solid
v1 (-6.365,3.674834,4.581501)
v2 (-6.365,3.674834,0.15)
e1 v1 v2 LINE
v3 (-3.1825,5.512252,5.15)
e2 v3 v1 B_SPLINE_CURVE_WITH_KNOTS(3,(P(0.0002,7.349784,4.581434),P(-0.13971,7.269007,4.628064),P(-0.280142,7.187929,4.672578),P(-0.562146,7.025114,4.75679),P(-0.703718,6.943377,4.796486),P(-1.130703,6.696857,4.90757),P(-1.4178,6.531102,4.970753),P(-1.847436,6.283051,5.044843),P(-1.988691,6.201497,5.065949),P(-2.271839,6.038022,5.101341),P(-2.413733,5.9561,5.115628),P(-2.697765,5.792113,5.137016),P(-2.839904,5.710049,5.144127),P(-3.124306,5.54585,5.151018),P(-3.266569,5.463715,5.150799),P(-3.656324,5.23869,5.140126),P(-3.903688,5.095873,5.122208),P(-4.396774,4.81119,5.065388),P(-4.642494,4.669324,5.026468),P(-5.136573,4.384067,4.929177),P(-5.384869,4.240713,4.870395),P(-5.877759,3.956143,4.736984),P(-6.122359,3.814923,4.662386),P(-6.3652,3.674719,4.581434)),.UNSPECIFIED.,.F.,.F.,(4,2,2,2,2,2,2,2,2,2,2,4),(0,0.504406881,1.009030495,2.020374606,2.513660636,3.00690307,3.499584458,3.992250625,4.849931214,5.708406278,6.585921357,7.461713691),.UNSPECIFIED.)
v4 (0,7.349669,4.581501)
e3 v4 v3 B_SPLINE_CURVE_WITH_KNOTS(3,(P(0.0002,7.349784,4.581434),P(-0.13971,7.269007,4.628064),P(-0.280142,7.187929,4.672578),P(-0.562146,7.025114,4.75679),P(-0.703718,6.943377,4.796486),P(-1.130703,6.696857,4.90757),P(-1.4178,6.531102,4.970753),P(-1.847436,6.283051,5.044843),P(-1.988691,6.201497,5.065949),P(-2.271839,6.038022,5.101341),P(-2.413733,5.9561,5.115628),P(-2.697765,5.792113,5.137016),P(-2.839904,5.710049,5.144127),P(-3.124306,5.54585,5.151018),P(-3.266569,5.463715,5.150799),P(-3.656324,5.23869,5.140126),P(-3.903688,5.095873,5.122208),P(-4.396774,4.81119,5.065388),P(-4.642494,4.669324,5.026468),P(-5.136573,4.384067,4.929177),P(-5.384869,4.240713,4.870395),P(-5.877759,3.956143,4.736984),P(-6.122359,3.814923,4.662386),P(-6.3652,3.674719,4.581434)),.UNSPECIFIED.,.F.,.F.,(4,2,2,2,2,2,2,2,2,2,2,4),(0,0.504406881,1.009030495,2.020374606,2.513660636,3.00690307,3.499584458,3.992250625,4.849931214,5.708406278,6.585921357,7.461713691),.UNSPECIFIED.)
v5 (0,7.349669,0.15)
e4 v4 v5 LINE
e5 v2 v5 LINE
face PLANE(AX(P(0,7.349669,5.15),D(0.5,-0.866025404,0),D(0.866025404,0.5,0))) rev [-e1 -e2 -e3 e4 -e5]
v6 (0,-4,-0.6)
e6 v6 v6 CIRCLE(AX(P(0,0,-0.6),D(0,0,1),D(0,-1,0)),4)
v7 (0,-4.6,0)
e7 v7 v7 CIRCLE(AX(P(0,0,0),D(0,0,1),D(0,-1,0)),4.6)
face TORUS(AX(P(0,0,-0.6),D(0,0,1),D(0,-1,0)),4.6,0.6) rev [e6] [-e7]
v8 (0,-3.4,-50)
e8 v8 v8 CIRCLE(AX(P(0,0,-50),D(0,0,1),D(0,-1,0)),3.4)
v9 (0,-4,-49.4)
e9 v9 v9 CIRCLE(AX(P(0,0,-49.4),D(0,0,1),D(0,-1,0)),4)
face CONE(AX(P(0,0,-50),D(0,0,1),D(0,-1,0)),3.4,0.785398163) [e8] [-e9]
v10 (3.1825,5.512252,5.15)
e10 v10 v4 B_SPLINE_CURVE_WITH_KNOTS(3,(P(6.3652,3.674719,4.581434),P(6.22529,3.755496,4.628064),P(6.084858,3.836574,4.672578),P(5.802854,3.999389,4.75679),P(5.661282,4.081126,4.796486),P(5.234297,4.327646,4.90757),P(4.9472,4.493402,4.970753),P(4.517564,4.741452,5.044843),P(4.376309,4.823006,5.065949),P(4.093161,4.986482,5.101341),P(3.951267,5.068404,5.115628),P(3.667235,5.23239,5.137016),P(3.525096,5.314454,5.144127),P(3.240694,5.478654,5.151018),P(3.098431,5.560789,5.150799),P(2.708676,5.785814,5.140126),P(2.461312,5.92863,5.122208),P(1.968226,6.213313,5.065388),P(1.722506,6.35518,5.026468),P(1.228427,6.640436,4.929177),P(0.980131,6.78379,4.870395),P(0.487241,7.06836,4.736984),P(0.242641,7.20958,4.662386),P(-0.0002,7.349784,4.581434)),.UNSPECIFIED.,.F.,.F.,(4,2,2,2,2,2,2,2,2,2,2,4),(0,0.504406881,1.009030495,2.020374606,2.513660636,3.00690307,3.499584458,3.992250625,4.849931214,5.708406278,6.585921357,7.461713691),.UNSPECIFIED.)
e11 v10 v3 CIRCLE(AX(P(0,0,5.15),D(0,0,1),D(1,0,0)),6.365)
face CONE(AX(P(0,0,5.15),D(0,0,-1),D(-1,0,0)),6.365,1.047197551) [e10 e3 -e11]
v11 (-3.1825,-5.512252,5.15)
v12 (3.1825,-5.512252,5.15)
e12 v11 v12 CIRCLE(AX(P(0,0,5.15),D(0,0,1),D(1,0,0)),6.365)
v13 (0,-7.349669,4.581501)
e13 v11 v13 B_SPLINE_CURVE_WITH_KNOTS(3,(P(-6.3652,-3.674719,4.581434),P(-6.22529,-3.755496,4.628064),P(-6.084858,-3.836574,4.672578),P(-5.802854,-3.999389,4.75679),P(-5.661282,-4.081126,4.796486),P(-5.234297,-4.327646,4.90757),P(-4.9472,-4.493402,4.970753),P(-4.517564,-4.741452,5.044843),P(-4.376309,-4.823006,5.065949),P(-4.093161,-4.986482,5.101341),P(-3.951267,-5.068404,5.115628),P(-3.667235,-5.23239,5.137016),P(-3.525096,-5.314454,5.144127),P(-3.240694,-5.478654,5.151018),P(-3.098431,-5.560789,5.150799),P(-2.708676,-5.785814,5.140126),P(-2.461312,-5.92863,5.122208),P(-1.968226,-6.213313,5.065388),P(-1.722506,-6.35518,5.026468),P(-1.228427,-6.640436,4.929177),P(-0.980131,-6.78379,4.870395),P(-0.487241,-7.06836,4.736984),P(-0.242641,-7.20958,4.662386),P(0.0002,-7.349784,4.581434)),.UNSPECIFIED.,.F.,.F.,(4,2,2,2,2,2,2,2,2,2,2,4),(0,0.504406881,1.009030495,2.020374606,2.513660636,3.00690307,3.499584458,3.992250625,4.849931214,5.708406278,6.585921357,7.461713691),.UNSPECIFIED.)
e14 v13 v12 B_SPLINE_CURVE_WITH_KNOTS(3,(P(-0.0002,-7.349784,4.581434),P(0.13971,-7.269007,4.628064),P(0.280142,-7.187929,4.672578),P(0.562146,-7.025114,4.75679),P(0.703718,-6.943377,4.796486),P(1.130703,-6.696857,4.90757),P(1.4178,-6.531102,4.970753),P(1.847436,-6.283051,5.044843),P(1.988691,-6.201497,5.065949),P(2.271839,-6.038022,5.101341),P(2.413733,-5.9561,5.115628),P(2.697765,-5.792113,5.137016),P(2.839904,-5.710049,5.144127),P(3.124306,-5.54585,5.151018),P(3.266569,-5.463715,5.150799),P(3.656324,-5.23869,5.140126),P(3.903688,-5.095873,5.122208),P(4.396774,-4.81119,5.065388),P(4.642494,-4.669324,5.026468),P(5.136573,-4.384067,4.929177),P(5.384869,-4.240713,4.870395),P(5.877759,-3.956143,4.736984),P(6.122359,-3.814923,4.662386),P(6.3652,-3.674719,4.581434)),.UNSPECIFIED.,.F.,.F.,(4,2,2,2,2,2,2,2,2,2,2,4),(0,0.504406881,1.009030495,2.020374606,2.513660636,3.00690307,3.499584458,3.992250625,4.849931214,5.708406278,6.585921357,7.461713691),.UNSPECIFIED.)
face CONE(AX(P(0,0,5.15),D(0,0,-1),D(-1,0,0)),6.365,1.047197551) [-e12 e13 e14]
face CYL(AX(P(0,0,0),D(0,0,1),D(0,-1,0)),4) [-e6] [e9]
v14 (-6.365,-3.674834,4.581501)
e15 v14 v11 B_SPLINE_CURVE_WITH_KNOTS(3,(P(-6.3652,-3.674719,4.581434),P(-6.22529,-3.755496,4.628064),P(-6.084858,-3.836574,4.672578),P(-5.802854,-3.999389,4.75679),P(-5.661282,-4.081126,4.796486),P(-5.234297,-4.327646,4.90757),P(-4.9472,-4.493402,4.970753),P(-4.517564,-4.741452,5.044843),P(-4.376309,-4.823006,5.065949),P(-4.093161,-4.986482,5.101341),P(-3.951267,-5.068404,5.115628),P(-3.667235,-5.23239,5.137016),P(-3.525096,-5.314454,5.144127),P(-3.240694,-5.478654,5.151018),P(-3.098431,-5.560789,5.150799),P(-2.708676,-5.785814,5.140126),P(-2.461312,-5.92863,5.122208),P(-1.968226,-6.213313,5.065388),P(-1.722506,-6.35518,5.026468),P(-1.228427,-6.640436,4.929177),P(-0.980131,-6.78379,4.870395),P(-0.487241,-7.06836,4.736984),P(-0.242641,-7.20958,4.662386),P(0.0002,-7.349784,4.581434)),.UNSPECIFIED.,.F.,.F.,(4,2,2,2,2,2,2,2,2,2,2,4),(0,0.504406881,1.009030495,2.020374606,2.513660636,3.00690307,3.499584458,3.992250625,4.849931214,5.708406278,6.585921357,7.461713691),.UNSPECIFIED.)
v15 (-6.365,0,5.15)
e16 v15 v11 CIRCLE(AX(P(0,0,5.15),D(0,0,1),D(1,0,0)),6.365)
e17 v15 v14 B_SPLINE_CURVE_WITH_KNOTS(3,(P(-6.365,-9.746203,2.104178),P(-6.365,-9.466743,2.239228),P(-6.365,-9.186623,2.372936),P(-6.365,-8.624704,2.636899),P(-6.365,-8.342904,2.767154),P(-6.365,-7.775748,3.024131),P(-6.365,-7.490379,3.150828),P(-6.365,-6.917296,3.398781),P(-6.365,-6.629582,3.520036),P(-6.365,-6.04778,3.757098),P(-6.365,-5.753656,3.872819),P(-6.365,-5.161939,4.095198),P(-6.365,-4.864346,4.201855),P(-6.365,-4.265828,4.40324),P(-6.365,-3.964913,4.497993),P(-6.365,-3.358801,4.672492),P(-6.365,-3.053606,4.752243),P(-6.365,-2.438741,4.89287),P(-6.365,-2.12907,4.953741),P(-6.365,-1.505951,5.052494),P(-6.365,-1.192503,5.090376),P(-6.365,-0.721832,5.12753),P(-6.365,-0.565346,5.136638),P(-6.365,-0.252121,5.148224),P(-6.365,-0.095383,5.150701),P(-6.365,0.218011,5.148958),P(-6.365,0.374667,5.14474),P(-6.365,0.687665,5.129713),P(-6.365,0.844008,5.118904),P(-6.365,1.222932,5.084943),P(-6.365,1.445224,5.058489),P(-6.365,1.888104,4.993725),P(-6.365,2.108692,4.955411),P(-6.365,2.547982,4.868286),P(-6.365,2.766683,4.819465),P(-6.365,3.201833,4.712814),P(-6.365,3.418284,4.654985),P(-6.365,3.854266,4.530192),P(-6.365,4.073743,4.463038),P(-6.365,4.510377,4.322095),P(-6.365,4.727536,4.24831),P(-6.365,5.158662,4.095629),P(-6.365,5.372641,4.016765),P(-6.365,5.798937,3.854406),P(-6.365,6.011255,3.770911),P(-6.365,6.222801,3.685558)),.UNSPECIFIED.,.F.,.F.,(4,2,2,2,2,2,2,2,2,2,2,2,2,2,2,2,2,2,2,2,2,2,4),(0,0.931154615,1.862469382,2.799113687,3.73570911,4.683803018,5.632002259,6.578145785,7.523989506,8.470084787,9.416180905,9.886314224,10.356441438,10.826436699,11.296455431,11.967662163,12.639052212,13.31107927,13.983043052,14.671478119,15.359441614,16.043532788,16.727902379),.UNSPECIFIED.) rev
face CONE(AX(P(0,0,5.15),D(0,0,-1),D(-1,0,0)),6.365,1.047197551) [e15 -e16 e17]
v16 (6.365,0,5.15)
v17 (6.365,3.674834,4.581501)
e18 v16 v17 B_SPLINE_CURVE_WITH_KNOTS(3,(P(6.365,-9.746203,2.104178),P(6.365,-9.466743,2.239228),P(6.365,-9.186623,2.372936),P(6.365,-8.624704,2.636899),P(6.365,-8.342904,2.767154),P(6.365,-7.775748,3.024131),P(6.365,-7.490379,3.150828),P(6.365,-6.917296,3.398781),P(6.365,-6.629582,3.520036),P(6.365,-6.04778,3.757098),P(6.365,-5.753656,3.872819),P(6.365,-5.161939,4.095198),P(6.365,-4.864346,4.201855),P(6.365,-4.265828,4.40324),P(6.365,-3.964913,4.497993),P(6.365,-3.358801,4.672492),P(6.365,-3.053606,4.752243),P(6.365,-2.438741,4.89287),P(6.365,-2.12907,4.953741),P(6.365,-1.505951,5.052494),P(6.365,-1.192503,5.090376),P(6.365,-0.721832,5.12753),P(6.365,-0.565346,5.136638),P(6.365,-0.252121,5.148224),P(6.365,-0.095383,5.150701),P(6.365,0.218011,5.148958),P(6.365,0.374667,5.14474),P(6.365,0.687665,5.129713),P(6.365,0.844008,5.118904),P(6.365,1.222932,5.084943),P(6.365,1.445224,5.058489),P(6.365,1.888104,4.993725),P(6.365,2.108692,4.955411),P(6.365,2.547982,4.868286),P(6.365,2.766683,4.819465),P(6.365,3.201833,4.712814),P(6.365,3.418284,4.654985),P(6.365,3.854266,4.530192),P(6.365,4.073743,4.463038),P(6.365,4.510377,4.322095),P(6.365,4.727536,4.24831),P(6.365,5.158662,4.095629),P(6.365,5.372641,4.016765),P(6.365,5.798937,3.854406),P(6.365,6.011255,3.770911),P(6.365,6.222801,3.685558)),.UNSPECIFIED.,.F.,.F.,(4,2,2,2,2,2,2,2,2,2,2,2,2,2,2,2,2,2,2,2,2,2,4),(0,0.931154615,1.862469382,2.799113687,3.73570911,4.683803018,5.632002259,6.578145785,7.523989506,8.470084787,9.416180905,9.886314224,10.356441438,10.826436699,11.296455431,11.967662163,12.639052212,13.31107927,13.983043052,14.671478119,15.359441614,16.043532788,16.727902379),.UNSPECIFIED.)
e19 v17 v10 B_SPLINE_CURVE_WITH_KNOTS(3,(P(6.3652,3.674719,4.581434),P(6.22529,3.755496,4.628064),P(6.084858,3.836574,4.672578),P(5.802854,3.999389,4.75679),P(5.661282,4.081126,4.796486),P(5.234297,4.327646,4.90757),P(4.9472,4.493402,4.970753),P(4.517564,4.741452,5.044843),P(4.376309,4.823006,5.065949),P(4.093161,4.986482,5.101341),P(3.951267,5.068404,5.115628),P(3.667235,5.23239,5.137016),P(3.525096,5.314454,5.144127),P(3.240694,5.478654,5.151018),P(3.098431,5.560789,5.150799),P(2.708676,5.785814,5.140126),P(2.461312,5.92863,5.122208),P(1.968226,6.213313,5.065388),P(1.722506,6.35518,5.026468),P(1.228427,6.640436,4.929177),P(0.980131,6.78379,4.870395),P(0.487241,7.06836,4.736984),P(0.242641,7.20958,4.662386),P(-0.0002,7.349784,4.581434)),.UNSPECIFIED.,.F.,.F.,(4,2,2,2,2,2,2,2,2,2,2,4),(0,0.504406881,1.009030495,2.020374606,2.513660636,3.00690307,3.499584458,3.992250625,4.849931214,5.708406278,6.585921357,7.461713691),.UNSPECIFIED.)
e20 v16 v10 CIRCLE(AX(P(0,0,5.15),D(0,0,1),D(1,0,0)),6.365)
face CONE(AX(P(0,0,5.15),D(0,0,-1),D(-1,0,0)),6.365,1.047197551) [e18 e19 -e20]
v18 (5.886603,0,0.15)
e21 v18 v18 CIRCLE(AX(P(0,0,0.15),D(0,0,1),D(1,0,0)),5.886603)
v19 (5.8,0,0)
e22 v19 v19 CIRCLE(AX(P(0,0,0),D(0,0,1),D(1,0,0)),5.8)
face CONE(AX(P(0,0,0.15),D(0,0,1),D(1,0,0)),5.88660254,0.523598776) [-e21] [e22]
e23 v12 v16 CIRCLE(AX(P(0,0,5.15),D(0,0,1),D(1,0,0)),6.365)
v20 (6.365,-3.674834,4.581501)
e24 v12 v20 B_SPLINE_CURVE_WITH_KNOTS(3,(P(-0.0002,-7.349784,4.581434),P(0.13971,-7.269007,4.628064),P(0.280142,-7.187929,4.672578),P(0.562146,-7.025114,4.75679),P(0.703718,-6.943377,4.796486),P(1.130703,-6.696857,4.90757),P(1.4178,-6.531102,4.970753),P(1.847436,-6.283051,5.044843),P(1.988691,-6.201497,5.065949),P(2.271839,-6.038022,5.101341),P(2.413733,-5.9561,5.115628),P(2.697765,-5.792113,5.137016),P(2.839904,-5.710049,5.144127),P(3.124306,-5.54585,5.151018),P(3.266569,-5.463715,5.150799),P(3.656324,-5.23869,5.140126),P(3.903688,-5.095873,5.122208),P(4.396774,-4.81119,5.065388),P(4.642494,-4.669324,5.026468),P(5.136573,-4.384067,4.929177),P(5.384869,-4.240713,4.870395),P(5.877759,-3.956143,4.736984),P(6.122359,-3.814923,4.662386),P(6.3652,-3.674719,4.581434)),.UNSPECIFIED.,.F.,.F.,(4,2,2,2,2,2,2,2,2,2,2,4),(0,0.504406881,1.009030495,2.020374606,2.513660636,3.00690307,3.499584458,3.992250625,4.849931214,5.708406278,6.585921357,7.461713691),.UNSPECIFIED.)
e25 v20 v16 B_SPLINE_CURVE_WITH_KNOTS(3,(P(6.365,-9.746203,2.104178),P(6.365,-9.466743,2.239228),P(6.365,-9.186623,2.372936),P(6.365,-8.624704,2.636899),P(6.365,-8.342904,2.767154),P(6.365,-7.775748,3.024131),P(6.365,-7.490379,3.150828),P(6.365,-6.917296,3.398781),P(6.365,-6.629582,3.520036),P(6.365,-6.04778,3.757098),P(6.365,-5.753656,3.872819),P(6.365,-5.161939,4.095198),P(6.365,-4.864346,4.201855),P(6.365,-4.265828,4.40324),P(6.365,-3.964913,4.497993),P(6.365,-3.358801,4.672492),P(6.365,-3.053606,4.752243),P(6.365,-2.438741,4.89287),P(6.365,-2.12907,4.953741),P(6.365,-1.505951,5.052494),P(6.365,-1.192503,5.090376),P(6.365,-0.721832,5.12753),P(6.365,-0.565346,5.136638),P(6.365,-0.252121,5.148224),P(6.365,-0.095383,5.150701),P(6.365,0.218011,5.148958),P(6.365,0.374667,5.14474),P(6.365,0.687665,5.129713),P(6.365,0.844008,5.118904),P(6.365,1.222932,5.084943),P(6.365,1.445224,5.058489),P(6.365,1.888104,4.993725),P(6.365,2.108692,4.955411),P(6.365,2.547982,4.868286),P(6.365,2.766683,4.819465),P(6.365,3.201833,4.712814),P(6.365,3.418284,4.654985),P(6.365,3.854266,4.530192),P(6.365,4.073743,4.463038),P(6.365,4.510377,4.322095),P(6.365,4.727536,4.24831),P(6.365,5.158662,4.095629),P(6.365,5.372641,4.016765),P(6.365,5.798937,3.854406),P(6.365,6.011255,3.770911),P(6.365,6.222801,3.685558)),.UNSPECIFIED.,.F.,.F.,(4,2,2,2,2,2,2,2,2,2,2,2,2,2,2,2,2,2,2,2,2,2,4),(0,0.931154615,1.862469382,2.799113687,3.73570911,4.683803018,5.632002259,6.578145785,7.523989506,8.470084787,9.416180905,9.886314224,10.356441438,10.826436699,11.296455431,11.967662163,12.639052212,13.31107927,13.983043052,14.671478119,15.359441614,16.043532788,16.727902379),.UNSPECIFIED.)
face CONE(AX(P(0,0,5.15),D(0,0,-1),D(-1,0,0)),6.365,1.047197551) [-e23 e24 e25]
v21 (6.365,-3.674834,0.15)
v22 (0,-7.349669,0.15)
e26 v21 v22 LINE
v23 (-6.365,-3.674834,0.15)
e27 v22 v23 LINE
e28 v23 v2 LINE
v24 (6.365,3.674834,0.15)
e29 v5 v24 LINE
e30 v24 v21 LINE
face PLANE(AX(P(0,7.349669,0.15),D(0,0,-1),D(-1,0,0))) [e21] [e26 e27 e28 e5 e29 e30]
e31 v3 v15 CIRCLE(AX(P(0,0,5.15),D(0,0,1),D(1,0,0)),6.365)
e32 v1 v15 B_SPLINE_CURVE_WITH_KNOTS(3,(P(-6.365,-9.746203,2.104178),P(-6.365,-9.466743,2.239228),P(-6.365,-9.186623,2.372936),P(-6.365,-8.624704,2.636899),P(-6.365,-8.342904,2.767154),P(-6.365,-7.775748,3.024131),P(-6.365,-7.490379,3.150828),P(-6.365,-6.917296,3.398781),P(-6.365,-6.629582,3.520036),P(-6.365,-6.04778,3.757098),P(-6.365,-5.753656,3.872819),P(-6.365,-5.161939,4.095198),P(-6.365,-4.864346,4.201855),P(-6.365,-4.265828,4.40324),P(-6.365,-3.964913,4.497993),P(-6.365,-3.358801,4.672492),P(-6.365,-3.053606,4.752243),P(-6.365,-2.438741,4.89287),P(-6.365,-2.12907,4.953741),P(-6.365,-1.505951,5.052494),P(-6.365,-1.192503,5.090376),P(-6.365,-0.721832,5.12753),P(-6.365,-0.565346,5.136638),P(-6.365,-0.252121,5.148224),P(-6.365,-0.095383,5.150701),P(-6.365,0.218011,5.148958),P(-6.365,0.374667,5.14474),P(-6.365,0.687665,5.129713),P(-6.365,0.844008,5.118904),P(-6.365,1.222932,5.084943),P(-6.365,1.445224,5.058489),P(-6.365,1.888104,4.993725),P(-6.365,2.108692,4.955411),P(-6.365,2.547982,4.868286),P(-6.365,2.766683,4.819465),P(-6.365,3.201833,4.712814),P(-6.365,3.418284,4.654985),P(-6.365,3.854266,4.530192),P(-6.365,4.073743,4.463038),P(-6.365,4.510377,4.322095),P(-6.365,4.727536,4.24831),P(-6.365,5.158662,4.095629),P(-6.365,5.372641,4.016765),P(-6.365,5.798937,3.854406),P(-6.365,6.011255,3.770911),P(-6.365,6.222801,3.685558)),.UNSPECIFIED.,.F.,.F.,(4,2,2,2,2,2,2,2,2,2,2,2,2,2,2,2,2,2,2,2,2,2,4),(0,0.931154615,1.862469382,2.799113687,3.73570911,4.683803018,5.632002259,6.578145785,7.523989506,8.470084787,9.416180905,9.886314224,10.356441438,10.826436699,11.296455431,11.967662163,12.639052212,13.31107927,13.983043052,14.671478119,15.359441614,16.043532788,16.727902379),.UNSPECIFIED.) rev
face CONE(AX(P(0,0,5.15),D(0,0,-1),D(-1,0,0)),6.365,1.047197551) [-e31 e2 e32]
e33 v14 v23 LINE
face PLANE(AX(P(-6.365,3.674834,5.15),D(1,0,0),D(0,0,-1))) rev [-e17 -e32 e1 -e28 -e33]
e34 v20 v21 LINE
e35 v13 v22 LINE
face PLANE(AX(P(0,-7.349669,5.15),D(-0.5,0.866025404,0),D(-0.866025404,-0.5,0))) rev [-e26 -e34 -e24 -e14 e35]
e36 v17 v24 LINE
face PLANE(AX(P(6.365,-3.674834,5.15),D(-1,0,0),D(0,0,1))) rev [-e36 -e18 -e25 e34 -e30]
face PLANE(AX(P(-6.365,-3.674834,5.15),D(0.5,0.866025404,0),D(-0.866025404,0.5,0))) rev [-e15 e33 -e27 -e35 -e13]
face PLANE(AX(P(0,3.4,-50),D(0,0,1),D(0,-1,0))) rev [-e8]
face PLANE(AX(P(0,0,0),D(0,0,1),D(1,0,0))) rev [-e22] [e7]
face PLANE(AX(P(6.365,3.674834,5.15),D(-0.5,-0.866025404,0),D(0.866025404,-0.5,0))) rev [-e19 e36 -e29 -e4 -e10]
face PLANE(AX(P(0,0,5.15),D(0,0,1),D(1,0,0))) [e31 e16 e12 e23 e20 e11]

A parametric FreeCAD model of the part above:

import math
import FreeCAD as App
import Part
import Sketcher
from FreeCAD import Vector
Q = App.Units.Quantity


def add_polygon(sketch, points):
    """Adds a closed chain of lines whose ends are joined by coincident constraints."""
    first, n = sketch.GeometryCount, len(points)
    for a, b in zip(points, points[1:] + points[:1]):
        sketch.addGeometry(Part.LineSegment(App.Vector(*a, 0), App.Vector(*b, 0)), False)
    for i in range(n):
        sketch.addConstraint(Sketcher.Constraint("Coincident", first + i, 2, first + (i + 1) % n, 1))

doc = App.newDocument("Part")
body = doc.addObject("PartDesign::Body", "Body")

sketch1 = doc.addObject("Sketcher::SketchObject", "Sketch")
body.addObject(sketch1)
sketch1.AttachmentSupport = (doc.XY_Plane, [""])
sketch1.MapMode = "FlatFace"
add_polygon(sketch1, [(0, 7.349669), (-6.365, 3.674834), (-6.365, -3.674834), (0, -7.349669), (6.365, -3.674834), (6.365, 3.674834)])
sketch1.addConstraint(Sketcher.Constraint("Vertical", 1))
sketch1.addConstraint(Sketcher.Constraint("Vertical", 4))
sketch1.addConstraint(Sketcher.Constraint("Symmetric", 0, 2, 3, 2, -1, 1))
sketch1.addConstraint(Sketcher.Constraint("Symmetric", 2, 2, 5, 2, -1, 1))
sketch1.addConstraint(Sketcher.Constraint("PointOnObject", 2, 2, -2))
sketch1.addConstraint(Sketcher.Constraint("Parallel", 2, 5))
sketch1.addConstraint(Sketcher.Constraint("Horizontal", 1, 2, 3, 2))
sketch1.addConstraint(Sketcher.Constraint("Angle", 0, Q("-150 deg")))
sketch1.addConstraint(Sketcher.Constraint("DistanceX", 1, 2, 3, 2, 12.73))
sketch1.addConstraint(Sketcher.Constraint("DistanceY", 1, 2, 1, 1, 7.349669))
pad1 = doc.addObject("PartDesign::Pad", "Pad")
body.addObject(pad1)
pad1.Profile = sketch1
pad1.Length = 5.15

sketch2 = doc.addObject("Sketcher::SketchObject", "Sketch001")
body.addObject(sketch2)
sketch2.AttachmentSupport = (doc.YZ_Plane, [""])
sketch2.MapMode = "FlatFace"
sketch2.addGeometry(Part.LineSegment(Vector(4.6, 0, 0), Vector(0, 0, 0)), False)
sketch2.addGeometry(Part.LineSegment(Vector(0, 0, 0), Vector(0, -50, 0)), False)
sketch2.addGeometry(Part.LineSegment(Vector(0, -50, 0), Vector(3.4, -50, 0)), False)
sketch2.addGeometry(Part.LineSegment(Vector(3.4, -50, 0), Vector(4, -49.4, 0)), False)
sketch2.addGeometry(Part.LineSegment(Vector(4, -49.4, 0), Vector(4, -0.6, 0)), False)
sketch2.addGeometry(Part.ArcOfCircle(Part.Circle(Vector(4.6, -0.6, 0), Vector(0, 0, 1), 0.6), math.radians(90), math.radians(180)), False)
sketch2.addConstraint(Sketcher.Constraint("Coincident", 0, 2, 1, 1))
sketch2.addConstraint(Sketcher.Constraint("Coincident", 1, 2, 2, 1))
sketch2.addConstraint(Sketcher.Constraint("Coincident", 2, 2, 3, 1))
sketch2.addConstraint(Sketcher.Constraint("Coincident", 3, 2, 4, 1))
sketch2.addConstraint(Sketcher.Constraint("Tangent", 4, 2, 5, 2))
sketch2.addConstraint(Sketcher.Constraint("Tangent", 5, 1, 0, 1))
sketch2.addConstraint(Sketcher.Constraint("Horizontal", 0))
sketch2.addConstraint(Sketcher.Constraint("Vertical", 1))
sketch2.addConstraint(Sketcher.Constraint("Horizontal", 2))
sketch2.addConstraint(Sketcher.Constraint("Vertical", 4))
sketch2.addConstraint(Sketcher.Constraint("Coincident", 0, 2, -1, 1))
sketch2.addConstraint(Sketcher.Constraint("Radius", 5, 0.6))
sketch2.addConstraint(Sketcher.Constraint("DistanceY", 1, 2, 1, 1, 50.0))
sketch2.addConstraint(Sketcher.Constraint("Angle", 3, Q("45 deg")))
sketch2.addConstraint(Sketcher.Constraint("DistanceX", 0, 2, 0, 1, 4.6))
sketch2.addConstraint(Sketcher.Constraint("DistanceX", 2, 1, 2, 2, 3.4))
revolution = doc.addObject("PartDesign::Revolution", "Revolution")
body.addObject(revolution)
revolution.Profile = sketch2
revolution.ReferenceAxis = (sketch2, ["V_Axis"])
revolution.Angle = 360

sketch3 = doc.addObject("Sketcher::SketchObject", "Sketch002")
body.addObject(sketch3)
sketch3.AttachmentSupport = (doc.YZ_Plane, [""])
sketch3.MapMode = "FlatFace"
add_polygon(sketch3, [(7.349669, 4.581501), (7.349669, 5.15), (6.365, 5.15)])
add_polygon(sketch3, [(7.349669, 0.15), (5.886603, 0.15), (5.8, 0), (7.349669, 0)])
sketch3.addConstraint(Sketcher.Constraint("Vertical", 0))
sketch3.addConstraint(Sketcher.Constraint("Horizontal", 1))
sketch3.addConstraint(Sketcher.Constraint("Horizontal", 3))
sketch3.addConstraint(Sketcher.Constraint("Horizontal", 5))
sketch3.addConstraint(Sketcher.Constraint("Vertical", 6))
sketch3.addConstraint(Sketcher.Constraint("PointOnObject", 4, 2, -1))
sketch3.addConstraint(Sketcher.Constraint("Perpendicular", 2, 4))
sketch3.addConstraint(Sketcher.Constraint("Vertical", 2, 2, 5, 2))
sketch3.addConstraint(Sketcher.Constraint("Angle", 2, Q("-30 deg")))
sketch3.addConstraint(Sketcher.Constraint("DistanceY", 3, 2, 1, 2, 5.0))
sketch3.addConstraint(Sketcher.Constraint("DistanceY", 6, 1, 6, 2, 0.15))
sketch3.addConstraint(Sketcher.Constraint("DistanceX", -1, 1, 4, 2, 5.8))
sketch3.addConstraint(Sketcher.Constraint("DistanceY", 0, 1, 0, 2, 0.568499))
sketch3.addConstraint(Sketcher.Constraint("DistanceX", -1, 1, 1, 2, 6.365))
groove = doc.addObject("PartDesign::Groove", "Groove")
body.addObject(groove)
groove.Profile = sketch3
groove.ReferenceAxis = (sketch3, ["V_Axis"])
groove.Angle = 360

doc.recompute()
